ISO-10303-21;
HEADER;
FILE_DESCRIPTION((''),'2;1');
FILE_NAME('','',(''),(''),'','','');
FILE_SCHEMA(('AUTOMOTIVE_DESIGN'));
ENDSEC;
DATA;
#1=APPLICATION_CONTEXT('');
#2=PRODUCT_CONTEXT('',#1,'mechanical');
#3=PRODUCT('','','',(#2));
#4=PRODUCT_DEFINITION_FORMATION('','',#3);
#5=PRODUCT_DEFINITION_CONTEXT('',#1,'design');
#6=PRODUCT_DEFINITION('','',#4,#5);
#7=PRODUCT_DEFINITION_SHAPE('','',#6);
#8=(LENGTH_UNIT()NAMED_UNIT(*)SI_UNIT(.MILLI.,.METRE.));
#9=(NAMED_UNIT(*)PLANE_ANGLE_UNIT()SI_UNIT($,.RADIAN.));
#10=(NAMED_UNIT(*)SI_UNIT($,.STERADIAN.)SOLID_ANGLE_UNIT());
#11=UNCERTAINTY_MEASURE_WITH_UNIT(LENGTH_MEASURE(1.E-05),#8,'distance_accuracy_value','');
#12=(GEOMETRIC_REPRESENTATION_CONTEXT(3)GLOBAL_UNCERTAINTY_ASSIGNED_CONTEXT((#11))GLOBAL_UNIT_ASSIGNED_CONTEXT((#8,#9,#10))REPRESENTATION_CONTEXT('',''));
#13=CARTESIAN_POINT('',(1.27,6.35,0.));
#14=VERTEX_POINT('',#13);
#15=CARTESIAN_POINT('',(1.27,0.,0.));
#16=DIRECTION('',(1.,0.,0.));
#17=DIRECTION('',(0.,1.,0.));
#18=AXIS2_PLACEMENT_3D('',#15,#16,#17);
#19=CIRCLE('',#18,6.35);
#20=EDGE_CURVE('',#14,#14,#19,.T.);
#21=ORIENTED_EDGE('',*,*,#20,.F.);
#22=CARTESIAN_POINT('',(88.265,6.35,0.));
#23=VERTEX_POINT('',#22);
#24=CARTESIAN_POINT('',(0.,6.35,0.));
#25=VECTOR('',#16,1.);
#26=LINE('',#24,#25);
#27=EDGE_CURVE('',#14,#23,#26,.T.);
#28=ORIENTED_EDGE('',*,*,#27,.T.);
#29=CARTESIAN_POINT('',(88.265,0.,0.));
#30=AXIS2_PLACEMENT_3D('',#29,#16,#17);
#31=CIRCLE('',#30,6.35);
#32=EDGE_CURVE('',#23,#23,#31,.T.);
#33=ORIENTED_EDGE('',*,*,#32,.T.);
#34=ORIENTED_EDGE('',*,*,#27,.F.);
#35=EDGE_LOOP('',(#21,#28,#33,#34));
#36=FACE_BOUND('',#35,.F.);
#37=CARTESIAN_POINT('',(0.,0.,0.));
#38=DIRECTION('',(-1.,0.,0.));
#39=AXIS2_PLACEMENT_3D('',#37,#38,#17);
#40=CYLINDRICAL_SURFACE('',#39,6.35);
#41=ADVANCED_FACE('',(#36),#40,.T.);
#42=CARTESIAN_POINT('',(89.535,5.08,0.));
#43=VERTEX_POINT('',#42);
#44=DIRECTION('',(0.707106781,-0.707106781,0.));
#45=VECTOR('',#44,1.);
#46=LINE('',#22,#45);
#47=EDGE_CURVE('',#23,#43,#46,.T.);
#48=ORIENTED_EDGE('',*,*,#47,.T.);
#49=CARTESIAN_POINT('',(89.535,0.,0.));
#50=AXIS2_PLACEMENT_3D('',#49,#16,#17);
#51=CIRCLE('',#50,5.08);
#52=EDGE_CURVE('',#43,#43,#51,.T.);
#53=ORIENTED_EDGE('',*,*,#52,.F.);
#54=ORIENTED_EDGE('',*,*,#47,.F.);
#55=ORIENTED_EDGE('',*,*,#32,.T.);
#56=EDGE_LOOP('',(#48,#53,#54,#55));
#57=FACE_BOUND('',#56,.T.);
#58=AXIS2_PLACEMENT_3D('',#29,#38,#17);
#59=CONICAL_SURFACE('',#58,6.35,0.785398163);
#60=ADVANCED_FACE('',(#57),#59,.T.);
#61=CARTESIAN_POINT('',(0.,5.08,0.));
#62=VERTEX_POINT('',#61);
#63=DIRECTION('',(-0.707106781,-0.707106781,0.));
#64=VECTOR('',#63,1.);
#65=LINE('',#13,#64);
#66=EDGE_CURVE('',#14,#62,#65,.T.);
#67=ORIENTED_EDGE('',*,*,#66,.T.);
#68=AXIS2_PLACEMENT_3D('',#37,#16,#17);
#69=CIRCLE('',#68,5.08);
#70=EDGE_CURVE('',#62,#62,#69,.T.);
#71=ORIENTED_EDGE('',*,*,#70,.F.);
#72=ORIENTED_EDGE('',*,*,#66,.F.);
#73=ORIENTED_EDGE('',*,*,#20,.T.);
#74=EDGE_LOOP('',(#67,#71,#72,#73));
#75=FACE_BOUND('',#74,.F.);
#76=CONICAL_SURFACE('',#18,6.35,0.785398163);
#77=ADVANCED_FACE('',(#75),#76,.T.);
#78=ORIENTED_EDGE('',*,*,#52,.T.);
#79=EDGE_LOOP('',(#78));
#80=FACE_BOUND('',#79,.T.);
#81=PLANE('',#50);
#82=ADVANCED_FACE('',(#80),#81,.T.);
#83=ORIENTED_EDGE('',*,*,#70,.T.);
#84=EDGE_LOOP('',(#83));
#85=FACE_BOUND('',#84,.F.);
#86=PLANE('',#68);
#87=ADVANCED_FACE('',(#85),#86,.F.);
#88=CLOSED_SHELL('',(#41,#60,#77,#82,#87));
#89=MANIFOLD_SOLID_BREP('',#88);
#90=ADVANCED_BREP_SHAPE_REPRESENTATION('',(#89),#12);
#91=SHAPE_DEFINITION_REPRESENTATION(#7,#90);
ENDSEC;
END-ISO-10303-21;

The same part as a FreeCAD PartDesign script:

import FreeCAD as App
import Part
import Sketcher
Q = App.Units.Quantity

doc = App.newDocument("Part")
body = doc.addObject("PartDesign::Body", "Body")

# Sketch on YZ plane
sketch1 = body.newObject("Sketcher::SketchObject", "Sketch")
sketch1.AttachmentSupport = (doc.getObject("YZ_Plane"), [""])
sketch1.MapMode = "FlatFace"
sketch1.addGeometry(Part.Circle(App.Vector(0, 0, 0), App.Vector(0, 0, 1), 6), False)
sketch1.addConstraint([
    Sketcher.Constraint("Coincident", 0, 3, -1, 1),
    Sketcher.Constraint("Diameter", 0, Q("0.5 in")),
])
pad1 = body.newObject("PartDesign::Pad", "Pad")
pad1.Profile = sketch1
pad1.Length = Q("3.525 in")
doc.recompute()

chamfer = body.newObject("PartDesign::Chamfer", "Chamfer")
chamfer.Base = (pad1, ["Edge1"])
chamfer.UseAllEdges = True
chamfer.Size = Q("0.05 in")

doc.recompute()
